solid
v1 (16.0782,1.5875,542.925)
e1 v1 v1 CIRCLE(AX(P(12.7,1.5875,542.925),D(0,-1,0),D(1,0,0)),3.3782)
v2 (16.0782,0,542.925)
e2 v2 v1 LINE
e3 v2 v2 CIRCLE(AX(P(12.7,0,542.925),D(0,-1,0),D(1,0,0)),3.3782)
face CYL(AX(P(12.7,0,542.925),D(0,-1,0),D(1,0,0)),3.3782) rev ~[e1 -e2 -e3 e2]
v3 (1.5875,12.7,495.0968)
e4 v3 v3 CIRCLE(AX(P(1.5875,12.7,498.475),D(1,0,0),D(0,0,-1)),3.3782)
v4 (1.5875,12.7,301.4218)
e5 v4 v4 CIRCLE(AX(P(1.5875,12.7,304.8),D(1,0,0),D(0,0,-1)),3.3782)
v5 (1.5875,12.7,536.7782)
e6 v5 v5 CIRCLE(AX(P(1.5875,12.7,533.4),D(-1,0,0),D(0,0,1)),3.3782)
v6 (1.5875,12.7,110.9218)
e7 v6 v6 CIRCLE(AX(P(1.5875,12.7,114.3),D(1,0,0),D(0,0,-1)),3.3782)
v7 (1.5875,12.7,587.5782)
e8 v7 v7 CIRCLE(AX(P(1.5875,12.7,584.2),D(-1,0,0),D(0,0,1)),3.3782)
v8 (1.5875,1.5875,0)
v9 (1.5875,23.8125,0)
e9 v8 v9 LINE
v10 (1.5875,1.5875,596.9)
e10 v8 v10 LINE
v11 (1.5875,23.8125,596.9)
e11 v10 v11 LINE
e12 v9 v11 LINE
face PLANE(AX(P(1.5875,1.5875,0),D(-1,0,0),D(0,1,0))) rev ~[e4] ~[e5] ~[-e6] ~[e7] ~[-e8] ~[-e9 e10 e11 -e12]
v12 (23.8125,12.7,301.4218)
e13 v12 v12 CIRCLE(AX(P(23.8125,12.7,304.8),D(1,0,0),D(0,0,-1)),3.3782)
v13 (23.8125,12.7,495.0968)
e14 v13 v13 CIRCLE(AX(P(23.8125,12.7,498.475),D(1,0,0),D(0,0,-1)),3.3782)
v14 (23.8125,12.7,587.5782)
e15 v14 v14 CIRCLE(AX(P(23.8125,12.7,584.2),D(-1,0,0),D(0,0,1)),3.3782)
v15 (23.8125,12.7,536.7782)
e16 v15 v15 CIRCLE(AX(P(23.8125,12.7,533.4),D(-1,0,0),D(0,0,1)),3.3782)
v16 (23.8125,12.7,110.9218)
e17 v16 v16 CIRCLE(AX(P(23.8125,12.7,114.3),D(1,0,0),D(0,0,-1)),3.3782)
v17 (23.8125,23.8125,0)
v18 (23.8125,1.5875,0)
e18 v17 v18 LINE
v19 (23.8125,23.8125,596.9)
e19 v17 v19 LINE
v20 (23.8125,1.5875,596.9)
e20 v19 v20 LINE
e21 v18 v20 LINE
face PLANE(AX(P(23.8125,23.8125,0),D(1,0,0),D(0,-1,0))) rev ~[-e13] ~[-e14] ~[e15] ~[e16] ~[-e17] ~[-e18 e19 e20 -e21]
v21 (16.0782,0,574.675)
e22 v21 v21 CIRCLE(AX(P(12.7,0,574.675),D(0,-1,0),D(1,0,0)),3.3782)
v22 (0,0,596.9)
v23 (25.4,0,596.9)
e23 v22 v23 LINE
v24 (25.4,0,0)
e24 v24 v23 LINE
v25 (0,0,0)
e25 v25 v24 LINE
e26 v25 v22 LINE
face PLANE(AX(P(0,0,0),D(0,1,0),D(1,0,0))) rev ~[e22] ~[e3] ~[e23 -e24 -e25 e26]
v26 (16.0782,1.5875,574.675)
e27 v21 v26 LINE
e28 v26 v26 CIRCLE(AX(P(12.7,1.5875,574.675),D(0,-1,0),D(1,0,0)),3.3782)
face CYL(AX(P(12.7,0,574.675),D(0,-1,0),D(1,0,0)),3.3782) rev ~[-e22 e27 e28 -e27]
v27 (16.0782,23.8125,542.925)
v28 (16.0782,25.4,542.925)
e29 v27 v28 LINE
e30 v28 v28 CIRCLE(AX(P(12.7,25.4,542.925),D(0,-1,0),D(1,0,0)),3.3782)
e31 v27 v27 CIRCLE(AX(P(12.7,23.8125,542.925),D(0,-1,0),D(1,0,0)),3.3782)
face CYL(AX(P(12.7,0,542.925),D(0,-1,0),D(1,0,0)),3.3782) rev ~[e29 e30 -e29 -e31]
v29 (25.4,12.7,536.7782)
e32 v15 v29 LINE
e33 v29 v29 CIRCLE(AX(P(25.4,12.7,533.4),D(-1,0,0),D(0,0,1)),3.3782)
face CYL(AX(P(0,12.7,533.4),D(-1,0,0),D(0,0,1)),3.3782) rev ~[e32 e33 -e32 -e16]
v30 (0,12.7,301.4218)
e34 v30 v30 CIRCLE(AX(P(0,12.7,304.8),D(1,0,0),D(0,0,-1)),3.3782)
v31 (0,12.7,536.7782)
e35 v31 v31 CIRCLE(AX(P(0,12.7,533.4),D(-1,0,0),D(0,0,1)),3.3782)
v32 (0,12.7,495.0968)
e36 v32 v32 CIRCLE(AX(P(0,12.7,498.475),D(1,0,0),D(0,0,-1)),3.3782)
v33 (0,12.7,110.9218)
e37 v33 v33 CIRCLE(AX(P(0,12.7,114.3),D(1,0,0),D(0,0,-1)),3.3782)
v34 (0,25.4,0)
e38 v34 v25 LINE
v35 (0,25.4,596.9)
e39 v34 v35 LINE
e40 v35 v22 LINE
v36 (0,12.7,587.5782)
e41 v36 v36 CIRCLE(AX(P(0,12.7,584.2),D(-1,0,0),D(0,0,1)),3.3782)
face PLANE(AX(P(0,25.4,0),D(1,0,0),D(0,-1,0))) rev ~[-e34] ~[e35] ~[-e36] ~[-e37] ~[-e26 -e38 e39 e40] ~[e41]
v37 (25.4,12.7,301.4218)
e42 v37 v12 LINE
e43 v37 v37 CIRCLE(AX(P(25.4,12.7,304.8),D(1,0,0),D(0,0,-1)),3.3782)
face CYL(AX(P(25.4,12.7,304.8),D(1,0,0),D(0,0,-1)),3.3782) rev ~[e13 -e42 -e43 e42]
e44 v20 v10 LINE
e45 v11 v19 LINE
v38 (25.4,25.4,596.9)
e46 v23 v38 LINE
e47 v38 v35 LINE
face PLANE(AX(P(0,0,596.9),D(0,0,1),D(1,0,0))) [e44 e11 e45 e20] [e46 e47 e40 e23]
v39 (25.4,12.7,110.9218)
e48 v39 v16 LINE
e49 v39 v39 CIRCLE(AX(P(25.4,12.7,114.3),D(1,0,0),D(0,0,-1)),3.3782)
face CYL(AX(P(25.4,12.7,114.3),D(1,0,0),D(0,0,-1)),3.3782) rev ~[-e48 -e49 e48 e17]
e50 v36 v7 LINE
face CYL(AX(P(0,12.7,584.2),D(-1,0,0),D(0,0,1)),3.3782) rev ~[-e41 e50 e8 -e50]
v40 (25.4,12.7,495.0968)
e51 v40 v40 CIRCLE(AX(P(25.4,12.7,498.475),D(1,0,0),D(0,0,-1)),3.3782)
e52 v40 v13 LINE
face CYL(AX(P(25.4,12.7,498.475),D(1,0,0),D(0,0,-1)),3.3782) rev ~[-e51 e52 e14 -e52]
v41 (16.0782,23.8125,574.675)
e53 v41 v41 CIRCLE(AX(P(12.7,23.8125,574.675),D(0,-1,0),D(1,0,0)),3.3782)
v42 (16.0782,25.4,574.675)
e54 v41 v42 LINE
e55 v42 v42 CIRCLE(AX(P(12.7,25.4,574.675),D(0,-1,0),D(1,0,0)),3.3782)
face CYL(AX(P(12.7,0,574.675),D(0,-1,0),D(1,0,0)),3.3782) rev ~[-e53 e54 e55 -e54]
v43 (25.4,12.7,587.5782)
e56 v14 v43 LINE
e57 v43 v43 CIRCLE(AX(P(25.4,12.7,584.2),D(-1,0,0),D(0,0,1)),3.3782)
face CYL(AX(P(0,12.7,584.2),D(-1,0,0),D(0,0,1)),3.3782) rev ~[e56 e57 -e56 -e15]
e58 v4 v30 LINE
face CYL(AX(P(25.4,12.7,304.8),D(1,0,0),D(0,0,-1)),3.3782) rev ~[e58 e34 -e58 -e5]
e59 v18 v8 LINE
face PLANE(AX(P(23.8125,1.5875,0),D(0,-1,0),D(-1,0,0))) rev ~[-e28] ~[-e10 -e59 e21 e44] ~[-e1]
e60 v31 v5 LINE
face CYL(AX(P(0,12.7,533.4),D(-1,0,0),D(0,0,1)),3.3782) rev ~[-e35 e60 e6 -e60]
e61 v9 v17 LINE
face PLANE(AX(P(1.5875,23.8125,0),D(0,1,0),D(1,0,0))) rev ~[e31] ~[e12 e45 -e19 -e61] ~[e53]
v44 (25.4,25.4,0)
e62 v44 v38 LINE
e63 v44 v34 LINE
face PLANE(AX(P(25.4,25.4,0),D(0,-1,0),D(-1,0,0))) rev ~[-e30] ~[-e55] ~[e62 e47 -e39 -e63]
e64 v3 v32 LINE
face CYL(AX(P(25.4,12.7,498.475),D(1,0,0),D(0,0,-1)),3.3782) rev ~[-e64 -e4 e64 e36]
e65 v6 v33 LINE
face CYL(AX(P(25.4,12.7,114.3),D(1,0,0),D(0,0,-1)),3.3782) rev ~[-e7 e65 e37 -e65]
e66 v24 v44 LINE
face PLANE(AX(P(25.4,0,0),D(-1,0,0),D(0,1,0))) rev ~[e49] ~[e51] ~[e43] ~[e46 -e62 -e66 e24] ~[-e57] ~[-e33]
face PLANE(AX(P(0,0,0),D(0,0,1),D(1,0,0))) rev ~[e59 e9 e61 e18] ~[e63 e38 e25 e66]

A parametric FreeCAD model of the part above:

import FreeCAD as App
import Part
import Sketcher
from FreeCAD import Vector
Q = App.Units.Quantity


def add_polygon(sketch, points):
    """Adds a closed chain of lines whose ends are joined by coincident constraints."""
    first, n = sketch.GeometryCount, len(points)
    for a, b in zip(points, points[1:] + points[:1]):
        sketch.addGeometry(Part.LineSegment(App.Vector(*a, 0), App.Vector(*b, 0)), False)
    for i in range(n):
        sketch.addConstraint(Sketcher.Constraint("Coincident", first + i, 2, first + (i + 1) % n, 1))

doc = App.newDocument("Part")
body = doc.addObject("PartDesign::Body", "Body")

sketch1 = doc.addObject("Sketcher::SketchObject", "Sketch")
body.addObject(sketch1)
sketch1.AttachmentSupport = (doc.XY_Plane, [""])
sketch1.MapMode = "FlatFace"
add_polygon(sketch1, [(0, 25.4), (0, 0), (25.4, 0), (25.4, 25.4)])
add_polygon(sketch1, [(1.5875, 1.5875), (1.5875, 23.8125), (23.8125, 23.8125), (23.8125, 1.5875)])
sketch1.addConstraint([
    Sketcher.Constraint("Vertical", 0),
    Sketcher.Constraint("Horizontal", 1),
    Sketcher.Constraint("Vertical", 2),
    Sketcher.Constraint("Horizontal", 3),
    Sketcher.Constraint("Vertical", 4),
    Sketcher.Constraint("Horizontal", 5),
    Sketcher.Constraint("Vertical", 6),
    Sketcher.Constraint("Horizontal", 7),
    Sketcher.Constraint("Coincident", 0, 2, -1, 1),
    Sketcher.Constraint("Equal", 3, 0),
    Sketcher.Constraint("Equal", 7, 4),
    Sketcher.Constraint("DistanceX", 1, 1, 1, 2, Q("1 in")),
    Sketcher.Constraint("DistanceX", -1, 1, 4, 2, Q("0.0625 in")),
    Sketcher.Constraint("DistanceY", -1, 1, 6, 2, Q("0.0625 in")),
    Sketcher.Constraint("DistanceY", 4, 2, 3, 2, Q("0.0625 in")),
])
pad1 = doc.addObject("PartDesign::Pad", "Pad")
body.addObject(pad1)
pad1.Profile = sketch1
pad1.Length = Q("23.5 in")

sketch2 = doc.addObject("Sketcher::SketchObject", "Sketch001")
body.addObject(sketch2)
sketch2.AttachmentSupport = (doc.XZ_Plane, [""])
sketch2.MapMode = "FlatFace"
sketch2.addGeometry([
    Part.Circle(Vector(12.7, 574.675, 0), Vector(0, 0, 1), 3.3782),
    Part.Circle(Vector(12.7, 542.925, 0), Vector(0, 0, 1), 3.3782),
], False)
sketch2.addConstraint([
    Sketcher.Constraint("Equal", 0, 1),
    Sketcher.Constraint("Vertical", 0, 3, 1, 3),
    Sketcher.Constraint("Diameter", 0, Q("0.266 in")),
    Sketcher.Constraint("DistanceX", -1, 1, 0, 3, Q("0.5 in")),
    Sketcher.Constraint("DistanceY", 1, 3, 0, 3, Q("1.25 in")),
    Sketcher.Constraint("DistanceY", -1, 1, 0, 3, Q("22.625 in")),
])
pocket1 = doc.addObject("PartDesign::Pocket", "Pocket")
body.addObject(pocket1)
pocket1.Profile = sketch2
pocket1.Length = Q("1 in")

sketch3 = doc.addObject("Sketcher::SketchObject", "Sketch002")
body.addObject(sketch3)
sketch3.AttachmentSupport = (doc.YZ_Plane, [""])
sketch3.MapMode = "FlatFace"
sketch3.addGeometry([
    Part.Circle(Vector(12.7, 533.4, 0), Vector(0, 0, 1), 3.3782),
    Part.Circle(Vector(12.7, 584.2, 0), Vector(0, 0, 1), 3.3782),
], False)
sketch3.addConstraint([
    Sketcher.Constraint("Equal", 0, 1),
    Sketcher.Constraint("Vertical", 0, 3, 1, 3),
    Sketcher.Constraint("Diameter", 0, Q("0.266 in")),
    Sketcher.Constraint("DistanceY", -1, 1, 0, 3, Q("21 in")),
    Sketcher.Constraint("DistanceY", -1, 1, 1, 3, Q("23 in")),
    Sketcher.Constraint("DistanceX", -1, 1, 0, 3, Q("0.5 in")),
])
pocket2 = doc.addObject("PartDesign::Pocket", "Pocket001")
body.addObject(pocket2)
pocket2.Profile = sketch3
pocket2.Length = Q("1 in")
pocket2.Reversed = True

sketch4 = doc.addObject("Sketcher::SketchObject", "Sketch003")
body.addObject(sketch4)
sketch4.AttachmentSupport = (doc.YZ_Plane, [""])
sketch4.MapMode = "FlatFace"
sketch4.AttachmentOffset = App.Placement(Vector(0, 0, 1 * 25.4), App.Rotation())
sketch4.addGeometry([
    Part.Circle(Vector(12.7, 498.475, 0), Vector(0, 0, 1), 3.3782),
    Part.Circle(Vector(12.7, 304.8, 0), Vector(0, 0, 1), 3.3782),
    Part.Circle(Vector(12.7, 114.3, 0), Vector(0, 0, 1), 3.3782),
], False)
sketch4.addConstraint([
    Sketcher.Constraint("Equal", 0, 1),
    Sketcher.Constraint("Equal", 1, 2),
    Sketcher.Constraint("Vertical", 0, 3, 1, 3),
    Sketcher.Constraint("Vertical", 1, 3, 2, 3),
    Sketcher.Constraint("Diameter", 0, Q("0.266 in")),
    Sketcher.Constraint("DistanceX", -1, 1, 0, 3, Q("0.5 in")),
    Sketcher.Constraint("DistanceY", -1, 1, 1, 3, Q("12 in")),
    Sketcher.Constraint("DistanceY", -1, 1, 2, 3, Q("4.5 in")),
    Sketcher.Constraint("DistanceY", -1, 1, 0, 3, Q("19.625 in")),
])
pocket3 = doc.addObject("PartDesign::Pocket", "Pocket002")
body.addObject(pocket3)
pocket3.Profile = sketch4
pocket3.Length = Q("1 in")

doc.recompute()
